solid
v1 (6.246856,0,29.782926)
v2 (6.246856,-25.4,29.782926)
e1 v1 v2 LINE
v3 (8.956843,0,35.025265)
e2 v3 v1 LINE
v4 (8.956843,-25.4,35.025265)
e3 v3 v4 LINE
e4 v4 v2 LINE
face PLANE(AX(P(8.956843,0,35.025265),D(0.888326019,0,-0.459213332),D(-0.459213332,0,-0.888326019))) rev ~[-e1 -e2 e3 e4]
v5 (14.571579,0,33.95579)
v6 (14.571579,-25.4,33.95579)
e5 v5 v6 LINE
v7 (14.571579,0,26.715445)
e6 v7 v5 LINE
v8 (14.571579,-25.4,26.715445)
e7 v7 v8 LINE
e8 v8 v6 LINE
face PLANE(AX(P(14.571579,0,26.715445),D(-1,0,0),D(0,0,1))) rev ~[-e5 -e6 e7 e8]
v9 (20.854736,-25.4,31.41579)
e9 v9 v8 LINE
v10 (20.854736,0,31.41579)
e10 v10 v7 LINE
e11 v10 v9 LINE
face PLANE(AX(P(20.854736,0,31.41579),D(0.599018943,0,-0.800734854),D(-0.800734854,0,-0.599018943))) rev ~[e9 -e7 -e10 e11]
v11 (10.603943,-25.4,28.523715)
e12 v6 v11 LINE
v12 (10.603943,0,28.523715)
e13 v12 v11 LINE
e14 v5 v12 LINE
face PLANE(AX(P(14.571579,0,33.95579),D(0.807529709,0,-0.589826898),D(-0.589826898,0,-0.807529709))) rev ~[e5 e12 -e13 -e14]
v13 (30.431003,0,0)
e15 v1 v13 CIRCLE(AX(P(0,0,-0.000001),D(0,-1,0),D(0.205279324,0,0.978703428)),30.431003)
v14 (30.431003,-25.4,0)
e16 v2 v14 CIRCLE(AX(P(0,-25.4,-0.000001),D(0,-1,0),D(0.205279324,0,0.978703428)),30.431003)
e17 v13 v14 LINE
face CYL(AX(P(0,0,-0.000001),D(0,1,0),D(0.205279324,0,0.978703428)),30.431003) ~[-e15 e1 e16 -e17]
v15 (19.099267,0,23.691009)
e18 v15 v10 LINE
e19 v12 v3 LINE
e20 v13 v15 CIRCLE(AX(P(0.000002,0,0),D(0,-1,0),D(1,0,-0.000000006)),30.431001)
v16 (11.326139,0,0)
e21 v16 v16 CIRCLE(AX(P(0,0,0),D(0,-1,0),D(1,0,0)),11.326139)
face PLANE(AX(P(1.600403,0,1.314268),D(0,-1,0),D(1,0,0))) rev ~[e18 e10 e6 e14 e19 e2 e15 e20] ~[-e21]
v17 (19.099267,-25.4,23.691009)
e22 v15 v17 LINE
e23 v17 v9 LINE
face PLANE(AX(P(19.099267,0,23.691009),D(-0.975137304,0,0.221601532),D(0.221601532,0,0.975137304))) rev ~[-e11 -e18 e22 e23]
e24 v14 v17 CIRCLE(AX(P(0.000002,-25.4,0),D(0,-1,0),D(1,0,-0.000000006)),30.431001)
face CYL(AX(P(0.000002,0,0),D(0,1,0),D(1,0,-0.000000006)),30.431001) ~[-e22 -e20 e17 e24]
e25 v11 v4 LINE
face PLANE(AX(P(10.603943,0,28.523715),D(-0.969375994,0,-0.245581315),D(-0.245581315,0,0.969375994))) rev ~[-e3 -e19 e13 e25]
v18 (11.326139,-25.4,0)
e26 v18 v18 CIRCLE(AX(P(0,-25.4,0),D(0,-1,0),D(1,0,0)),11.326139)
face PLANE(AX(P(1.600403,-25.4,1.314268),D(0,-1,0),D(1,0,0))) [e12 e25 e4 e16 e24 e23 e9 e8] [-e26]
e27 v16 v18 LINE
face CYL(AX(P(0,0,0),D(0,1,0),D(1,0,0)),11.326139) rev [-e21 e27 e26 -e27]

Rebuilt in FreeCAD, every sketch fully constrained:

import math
import FreeCAD as App
import Part
import Sketcher
from FreeCAD import Vector
Q = App.Units.Quantity

doc = App.newDocument("Part")
body = doc.addObject("PartDesign::Body", "Body")

# Sketch on XZ plane
sketch1 = doc.addObject("Sketcher::SketchObject", "Sketch")
body.addObject(sketch1)
sketch1.AttachmentSupport = (doc.XZ_Plane, [""])
sketch1.MapMode = "FlatFace"
sketch1.addGeometry([
    Part.ArcOfCircle(Part.Circle(Vector(0, 0, 0), Vector(0, 0, 1), 30), math.radians(78), math.radians(360)),  # 0
    Part.ArcOfCircle(Part.Circle(Vector(0, 0, 0), Vector(0, 0, 1), 30), math.radians(0), math.radians(51)),  # 1
    Part.LineSegment(Vector(19, 24, 0), Vector(21, 31, 0)),  # 2
    Part.LineSegment(Vector(21, 31, 0), Vector(15, 27, 0)),  # 3
    Part.LineSegment(Vector(15, 27, 0), Vector(15, 34, 0)),  # 4
    Part.LineSegment(Vector(15, 34, 0), Vector(11, 29, 0)),  # 5
    Part.LineSegment(Vector(11, 29, 0), Vector(9, 35, 0)),  # 6
    Part.LineSegment(Vector(9, 35, 0), Vector(6, 30, 0)),  # 7
    Part.Circle(Vector(0, 0, 0), Vector(0, 0, 1), 11),  # 8
], False)
sketch1.addConstraint([
    Sketcher.Constraint("Tangent", 0, 2, 1, 1),
    Sketcher.Constraint("Coincident", 1, 2, 2, 1),
    Sketcher.Constraint("Coincident", 2, 2, 3, 1),
    Sketcher.Constraint("Coincident", 3, 2, 4, 1),
    Sketcher.Constraint("Coincident", 4, 2, 5, 1),
    Sketcher.Constraint("Coincident", 5, 2, 6, 1),
    Sketcher.Constraint("Coincident", 6, 2, 7, 1),
    Sketcher.Constraint("Coincident", 7, 2, 0, 1),
    Sketcher.Constraint("Vertical", 4),
    Sketcher.Constraint("Coincident", 0, 3, -1, 1),
    Sketcher.Constraint("Coincident", 8, 3, -1, 1),
    Sketcher.Constraint("Equal", 0, 1),
    Sketcher.Constraint("PointOnObject", 0, 2, -1),
    Sketcher.Constraint("DistanceY", 2, 2, 4, 2, Q("0.1 in")),
    Sketcher.Constraint("Radius", 1, 30.431001),
    Sketcher.Constraint("Diameter", 8, 22.652278),
    Sketcher.Constraint("DistanceX", 6, 2, 5, 2, 1.6471),
    Sketcher.Constraint("Distance", 3, 7.846738),
    Sketcher.Constraint("Distance", 5, 6.72678),
    Sketcher.Constraint("Distance", 7, 5.901368),
    Sketcher.Constraint("DistanceY", 4, 1, 4, 2, 7.240345),
    Sketcher.Constraint("DistanceY", -1, 1, 1, 2, 23.691009),
    Sketcher.Constraint("DistanceY", -1, 1, 2, 2, 31.41579),
    Sketcher.Constraint("DistanceX", -1, 1, 3, 2, 14.571579),
    Sketcher.Constraint("DistanceY", 3, 2, 5, 2, 1.80827),
    Sketcher.Constraint("DistanceY", 5, 2, 6, 2, 6.50155),
])
pad1 = doc.addObject("PartDesign::Pad", "Pad")
body.addObject(pad1)
pad1.Profile = sketch1
pad1.Length = Q("1 in")

doc.recompute()
